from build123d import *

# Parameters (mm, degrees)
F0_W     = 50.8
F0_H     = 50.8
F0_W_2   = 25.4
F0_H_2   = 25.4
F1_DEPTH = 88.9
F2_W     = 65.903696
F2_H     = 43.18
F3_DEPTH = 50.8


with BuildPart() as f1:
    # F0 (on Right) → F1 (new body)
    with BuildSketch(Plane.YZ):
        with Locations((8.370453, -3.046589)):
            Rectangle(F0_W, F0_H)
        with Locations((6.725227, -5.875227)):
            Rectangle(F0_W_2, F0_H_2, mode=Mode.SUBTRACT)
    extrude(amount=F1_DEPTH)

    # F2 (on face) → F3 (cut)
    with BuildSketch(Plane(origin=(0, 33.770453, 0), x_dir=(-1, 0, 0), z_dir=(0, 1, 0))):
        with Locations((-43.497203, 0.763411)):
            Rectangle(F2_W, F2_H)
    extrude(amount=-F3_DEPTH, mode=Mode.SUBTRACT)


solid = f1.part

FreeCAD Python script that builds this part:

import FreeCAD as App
import Part
import Sketcher
Q = App.Units.Quantity


def add_polygon(sketch, points):
    """Adds a closed chain of lines whose ends are joined by coincident constraints."""
    first, n = sketch.GeometryCount, len(points)
    for a, b in zip(points, points[1:] + points[:1]):
        sketch.addGeometry(Part.LineSegment(App.Vector(*a, 0), App.Vector(*b, 0)), False)
    for i in range(n):
        sketch.addConstraint(Sketcher.Constraint("Coincident", first + i, 2, first + (i + 1) % n, 1))

doc = App.newDocument("Part")
params = doc.addObject("Spreadsheet::Sheet", "Params")
for row, (alias, value) in enumerate([
    ("sketch1_width", "2 in"),
    ("sketch1_width2", "1 in"),
    ("pad1_length", "3.5 in"),
    ("sketch2_height", "1.7 in"),
    ("pocket1_length", "2 in"),
], start=1):
    params.set(f"A{row}", alias)
    params.set(f"B{row}", "=" + value)
    params.setAlias(f"B{row}", alias)

body = doc.addObject("PartDesign::Body", "Body")

# Sketch on YZ plane
sketch1 = body.newObject("Sketcher::SketchObject", "Sketch")
sketch1.AttachmentSupport = (doc.getObject("YZ_Plane"), [""])
sketch1.MapMode = "FlatFace"
add_polygon(sketch1, [(-17, 22), (-17, -28), (34, -28), (34, 22)])  # lines 0-3
add_polygon(sketch1, [(19, -19), (-6, -19), (-6, 7), (19, 7)])  # lines 4-7
sketch1.addConstraint([
    Sketcher.Constraint("Vertical", 0),
    Sketcher.Constraint("Horizontal", 1),
    Sketcher.Constraint("Vertical", 2),
    Sketcher.Constraint("Horizontal", 3),
    Sketcher.Constraint("Horizontal", 4),
    Sketcher.Constraint("Vertical", 5),
    Sketcher.Constraint("Horizontal", 6),
    Sketcher.Constraint("Vertical", 7),
    Sketcher.Constraint("Equal", 3, 0),
    Sketcher.Constraint("Equal", 6, 5),
    Sketcher.Constraint("DistanceX", 1, 1, 1, 2, Q("2 in")),
    Sketcher.Constraint("DistanceX", 4, 2, 4, 1, Q("1 in")),
    Sketcher.Constraint("DistanceY", 0, 2, -1, 1, 28.446589),
    Sketcher.Constraint("DistanceY", 0, 2, 4, 2, 9.871362),
    Sketcher.Constraint("DistanceX", 0, 2, -1, 1, 17.029547),
    Sketcher.Constraint("DistanceX", 4, 2, -1, 1, 5.974773),
])
sketch1.setExpression("Constraints[18]", "Params.sketch1_width")
sketch1.setExpression("Constraints[19]", "Params.sketch1_width2")
pad1 = body.newObject("PartDesign::Pad", "Pad")
pad1.Profile = sketch1
pad1.setExpression("Length", "Params.pad1_length")

# Sketch on XZ plane
sketch2 = body.newObject("Sketcher::SketchObject", "Sketch001")
sketch2.AttachmentSupport = (doc.getObject("XZ_Plane"), [""])
sketch2.MapMode = "FlatFace"
sketch2.AttachmentOffset = App.Placement(App.Vector(0, 0, -33.770453), App.Rotation())
add_polygon(sketch2, [(76, 22), (76, -21), (11, -21), (11, 22)])  # lines 0-3
sketch2.addConstraint([
    Sketcher.Constraint("Vertical", 0),
    Sketcher.Constraint("Horizontal", 1),
    Sketcher.Constraint("Vertical", 2),
    Sketcher.Constraint("Horizontal", 3),
    Sketcher.Constraint("DistanceY", 0, 2, 0, 1, Q("1.7 in")),
    Sketcher.Constraint("DistanceX", 1, 2, 1, 1, 65.903696),
    Sketcher.Constraint("DistanceX", -1, 1, 0, 2, 76.449051),
    Sketcher.Constraint("DistanceY", 0, 2, -1, 1, 20.826589),
])
sketch2.setExpression("Constraints[8]", "Params.sketch2_height")
pocket1 = body.newObject("PartDesign::Pocket", "Pocket")
pocket1.Profile = sketch2
pocket1.setExpression("Length", "Params.pocket1_length")
pocket1.Reversed = True

doc.recompute()
